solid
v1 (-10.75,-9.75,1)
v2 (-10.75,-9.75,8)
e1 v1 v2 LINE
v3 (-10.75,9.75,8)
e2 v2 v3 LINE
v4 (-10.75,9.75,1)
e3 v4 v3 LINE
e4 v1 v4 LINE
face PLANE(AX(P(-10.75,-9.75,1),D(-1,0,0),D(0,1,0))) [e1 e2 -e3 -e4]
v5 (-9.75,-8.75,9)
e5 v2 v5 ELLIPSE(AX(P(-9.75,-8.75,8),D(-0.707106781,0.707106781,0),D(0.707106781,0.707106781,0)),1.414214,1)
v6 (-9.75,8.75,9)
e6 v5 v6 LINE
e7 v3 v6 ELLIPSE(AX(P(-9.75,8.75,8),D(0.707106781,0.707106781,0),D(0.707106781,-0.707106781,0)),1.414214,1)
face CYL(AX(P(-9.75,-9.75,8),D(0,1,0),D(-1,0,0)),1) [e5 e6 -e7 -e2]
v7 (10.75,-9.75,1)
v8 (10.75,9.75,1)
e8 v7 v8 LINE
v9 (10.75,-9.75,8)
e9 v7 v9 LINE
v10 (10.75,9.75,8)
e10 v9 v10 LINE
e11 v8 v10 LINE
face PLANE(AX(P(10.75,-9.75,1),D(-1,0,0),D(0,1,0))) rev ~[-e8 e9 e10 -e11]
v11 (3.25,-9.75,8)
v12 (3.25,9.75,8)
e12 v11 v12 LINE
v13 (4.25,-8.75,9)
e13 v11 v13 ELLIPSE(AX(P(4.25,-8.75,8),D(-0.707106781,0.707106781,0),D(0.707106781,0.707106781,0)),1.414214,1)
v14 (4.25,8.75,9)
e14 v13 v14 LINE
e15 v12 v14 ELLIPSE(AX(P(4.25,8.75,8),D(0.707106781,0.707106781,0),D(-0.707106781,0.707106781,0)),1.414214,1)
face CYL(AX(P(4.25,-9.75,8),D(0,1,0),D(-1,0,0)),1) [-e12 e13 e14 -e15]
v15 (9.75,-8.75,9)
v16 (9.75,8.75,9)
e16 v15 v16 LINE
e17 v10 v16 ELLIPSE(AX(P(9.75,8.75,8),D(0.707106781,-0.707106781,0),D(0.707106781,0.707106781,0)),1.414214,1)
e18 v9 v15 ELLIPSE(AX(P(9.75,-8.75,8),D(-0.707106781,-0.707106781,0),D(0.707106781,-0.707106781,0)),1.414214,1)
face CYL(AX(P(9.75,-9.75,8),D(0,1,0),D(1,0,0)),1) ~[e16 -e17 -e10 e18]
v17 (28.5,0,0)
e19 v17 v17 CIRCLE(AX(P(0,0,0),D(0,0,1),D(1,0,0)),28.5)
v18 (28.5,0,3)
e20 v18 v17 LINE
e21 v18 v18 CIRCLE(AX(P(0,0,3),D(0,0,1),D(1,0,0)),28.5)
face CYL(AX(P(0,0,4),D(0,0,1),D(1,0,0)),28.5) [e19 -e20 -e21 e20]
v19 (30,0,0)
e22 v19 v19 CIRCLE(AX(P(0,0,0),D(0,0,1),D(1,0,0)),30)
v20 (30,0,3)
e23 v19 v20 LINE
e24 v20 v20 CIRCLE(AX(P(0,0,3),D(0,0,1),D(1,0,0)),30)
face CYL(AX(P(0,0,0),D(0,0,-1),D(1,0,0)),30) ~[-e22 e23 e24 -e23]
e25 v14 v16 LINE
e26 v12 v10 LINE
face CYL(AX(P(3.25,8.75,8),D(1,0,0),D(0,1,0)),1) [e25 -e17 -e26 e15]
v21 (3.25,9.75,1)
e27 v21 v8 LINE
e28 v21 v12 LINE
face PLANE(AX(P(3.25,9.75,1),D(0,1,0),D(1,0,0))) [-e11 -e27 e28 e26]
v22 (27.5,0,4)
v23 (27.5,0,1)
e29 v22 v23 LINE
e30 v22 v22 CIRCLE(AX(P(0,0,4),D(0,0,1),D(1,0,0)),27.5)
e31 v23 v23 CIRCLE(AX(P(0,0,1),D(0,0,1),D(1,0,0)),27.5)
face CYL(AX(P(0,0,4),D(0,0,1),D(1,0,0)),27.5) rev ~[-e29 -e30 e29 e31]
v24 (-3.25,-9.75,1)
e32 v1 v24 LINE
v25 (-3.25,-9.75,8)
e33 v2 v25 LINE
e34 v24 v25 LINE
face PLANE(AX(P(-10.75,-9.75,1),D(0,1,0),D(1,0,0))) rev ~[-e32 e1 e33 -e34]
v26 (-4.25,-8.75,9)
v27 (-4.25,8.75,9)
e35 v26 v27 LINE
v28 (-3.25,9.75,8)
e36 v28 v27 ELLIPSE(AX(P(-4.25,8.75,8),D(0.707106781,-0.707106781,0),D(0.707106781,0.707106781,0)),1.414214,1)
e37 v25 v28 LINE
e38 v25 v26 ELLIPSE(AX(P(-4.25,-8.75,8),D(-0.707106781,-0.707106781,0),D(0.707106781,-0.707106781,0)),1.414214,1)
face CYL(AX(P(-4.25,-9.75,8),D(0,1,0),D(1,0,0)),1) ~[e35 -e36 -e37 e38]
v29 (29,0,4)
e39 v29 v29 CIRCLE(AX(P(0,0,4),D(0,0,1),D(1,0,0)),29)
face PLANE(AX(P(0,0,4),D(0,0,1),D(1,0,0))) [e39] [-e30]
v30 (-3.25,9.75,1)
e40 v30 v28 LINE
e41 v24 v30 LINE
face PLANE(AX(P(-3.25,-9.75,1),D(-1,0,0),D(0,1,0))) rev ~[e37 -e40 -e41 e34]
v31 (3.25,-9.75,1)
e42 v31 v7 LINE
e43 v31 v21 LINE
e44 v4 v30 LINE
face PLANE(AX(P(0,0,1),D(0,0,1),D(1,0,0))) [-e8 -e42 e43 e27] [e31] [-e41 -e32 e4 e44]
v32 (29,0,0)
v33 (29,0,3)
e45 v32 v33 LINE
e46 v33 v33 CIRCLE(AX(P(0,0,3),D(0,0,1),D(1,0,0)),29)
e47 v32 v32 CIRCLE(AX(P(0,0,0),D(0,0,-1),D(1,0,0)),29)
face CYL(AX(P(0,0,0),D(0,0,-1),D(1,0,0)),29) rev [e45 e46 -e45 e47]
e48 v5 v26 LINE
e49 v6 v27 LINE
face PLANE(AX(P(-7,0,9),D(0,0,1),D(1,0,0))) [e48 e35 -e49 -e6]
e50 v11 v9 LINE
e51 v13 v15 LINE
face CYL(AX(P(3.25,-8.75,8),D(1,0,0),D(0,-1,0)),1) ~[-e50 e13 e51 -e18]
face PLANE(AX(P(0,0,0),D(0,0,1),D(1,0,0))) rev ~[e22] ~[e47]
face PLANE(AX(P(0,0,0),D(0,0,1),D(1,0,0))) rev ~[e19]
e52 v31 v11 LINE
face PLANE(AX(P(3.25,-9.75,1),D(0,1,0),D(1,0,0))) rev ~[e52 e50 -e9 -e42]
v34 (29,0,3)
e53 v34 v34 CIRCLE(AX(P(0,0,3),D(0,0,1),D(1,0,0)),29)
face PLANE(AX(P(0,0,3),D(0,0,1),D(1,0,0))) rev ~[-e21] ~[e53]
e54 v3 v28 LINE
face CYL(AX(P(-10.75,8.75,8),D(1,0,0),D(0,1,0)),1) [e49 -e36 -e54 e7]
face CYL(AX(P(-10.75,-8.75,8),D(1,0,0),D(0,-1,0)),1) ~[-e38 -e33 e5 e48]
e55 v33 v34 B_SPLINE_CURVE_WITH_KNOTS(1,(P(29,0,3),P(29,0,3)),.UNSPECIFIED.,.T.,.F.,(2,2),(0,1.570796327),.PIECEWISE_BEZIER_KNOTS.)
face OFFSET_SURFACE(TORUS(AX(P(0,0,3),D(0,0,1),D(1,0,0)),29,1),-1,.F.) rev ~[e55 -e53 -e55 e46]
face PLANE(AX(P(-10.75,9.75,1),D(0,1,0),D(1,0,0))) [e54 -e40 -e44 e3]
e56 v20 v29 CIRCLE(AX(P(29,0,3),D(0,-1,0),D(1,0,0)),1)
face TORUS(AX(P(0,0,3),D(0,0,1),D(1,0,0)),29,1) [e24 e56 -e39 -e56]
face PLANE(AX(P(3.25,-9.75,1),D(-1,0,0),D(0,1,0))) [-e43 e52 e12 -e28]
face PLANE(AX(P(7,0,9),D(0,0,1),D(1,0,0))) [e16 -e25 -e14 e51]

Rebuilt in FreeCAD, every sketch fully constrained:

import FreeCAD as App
import Part
import Sketcher
from FreeCAD import Vector
Q = App.Units.Quantity


def edges_at(feature, points):
    """Names of the edges that pass closest to the given points."""
    edges = feature.Shape.Edges
    near = lambda p: min(range(len(edges)), key=lambda i: edges[i].distToShape(Part.Vertex(*p))[0])
    return sorted({f"Edge{near(p) + 1}" for p in points})


def faces_at(feature, points):
    """Names of the faces that lie closest to the given points."""
    faces = feature.Shape.Faces
    near = lambda p: min(range(len(faces)), key=lambda i: faces[i].distToShape(Part.Vertex(*p))[0])
    return sorted({f"Face{near(p) + 1}" for p in points})


def add_polygon(sketch, points):
    """Adds a closed chain of lines whose ends are joined by coincident constraints."""
    first, n = sketch.GeometryCount, len(points)
    for a, b in zip(points, points[1:] + points[:1]):
        sketch.addGeometry(Part.LineSegment(App.Vector(*a, 0), App.Vector(*b, 0)), False)
    for i in range(n):
        sketch.addConstraint(Sketcher.Constraint("Coincident", first + i, 2, first + (i + 1) % n, 1))

doc = App.newDocument("Part")
params = doc.addObject("Spreadsheet::Sheet", "Params")
for row, (alias, value) in enumerate([
    ("sketch1_diameter", "60 mm"),
    ("pad1_length", "4 mm"),
    ("sketch2_diameter", "55 mm"),
    ("pocket1_length", "3 mm"),
    ("fillet_radius", "1 mm"),
    ("thickness_wall", "1 mm"),
    ("sketch3_width", "7.5 mm"),
    ("sketch3_height", "19.5 mm"),
    ("pad2_length", "8 mm"),
    ("fillet2_radius", "1 mm"),
], start=1):
    params.set(f"A{row}", alias)
    params.set(f"B{row}", "=" + value)
    params.setAlias(f"B{row}", alias)

body = doc.addObject("PartDesign::Body", "Body")

# Sketch on XY plane
sketch1 = doc.addObject("Sketcher::SketchObject", "Sketch")
body.addObject(sketch1)
sketch1.AttachmentSupport = (doc.XY_Plane, [""])
sketch1.MapMode = "FlatFace"
sketch1.addGeometry(Part.Circle(Vector(0, 0, 0), Vector(0, 0, 1), 30), False)
sketch1.addConstraint([
    Sketcher.Constraint("Coincident", 0, 3, -1, 1),
    Sketcher.Constraint("Diameter", 0, Q("60 mm")),
])
sketch1.setExpression("Constraints[1]", "Params.sketch1_diameter")
pad1 = doc.addObject("PartDesign::Pad", "Pad")
body.addObject(pad1)
pad1.Profile = sketch1
pad1.setExpression("Length", "Params.pad1_length")

# Sketch on XY plane
sketch2 = doc.addObject("Sketcher::SketchObject", "Sketch001")
body.addObject(sketch2)
sketch2.AttachmentSupport = (doc.XY_Plane, [""])
sketch2.MapMode = "FlatFace"
sketch2.AttachmentOffset = App.Placement(Vector(0, 0, 4), App.Rotation())
sketch2.addGeometry(Part.Circle(Vector(0, 0, 0), Vector(0, 0, 1), 28), False)
sketch2.addConstraint([
    Sketcher.Constraint("Coincident", 0, 3, -1, 1),
    Sketcher.Constraint("Diameter", 0, Q("55 mm")),
])
sketch2.setExpression("Constraints[1]", "Params.sketch2_diameter")
pocket1 = doc.addObject("PartDesign::Pocket", "Pocket")
body.addObject(pocket1)
pocket1.Profile = sketch2
pocket1.setExpression("Length", "Params.pocket1_length")
doc.recompute()

fillet = doc.addObject("PartDesign::Fillet", "Fillet")
body.addObject(fillet)
fillet.Base = (pocket1, edges_at(pocket1, [(-30, 0, 4)]))
fillet.setExpression("Radius", "Params.fillet_radius")
doc.recompute()

thickness = doc.addObject("PartDesign::Thickness", "Thickness")
body.addObject(thickness)
thickness.Base = (fillet, faces_at(fillet, [(0, 0, 0)]))
thickness.setExpression("Value", "Params.thickness_wall")
thickness.Reversed = True
thickness.Join = "Intersection"

# Sketch on XY plane
sketch3 = doc.addObject("Sketcher::SketchObject", "Sketch002")
body.addObject(sketch3)
sketch3.AttachmentSupport = (doc.XY_Plane, [""])
sketch3.MapMode = "FlatFace"
sketch3.AttachmentOffset = App.Placement(Vector(0, 0, 1), App.Rotation())
add_polygon(sketch3, [(3, 10), (3, -10), (11, -10), (11, 10)])  # lines 0-3
add_polygon(sketch3, [(-11, 10), (-11, -10), (-3, -10), (-3, 10)])  # lines 4-7
sketch3.addConstraint([
    Sketcher.Constraint("Vertical", 0),
    Sketcher.Constraint("Horizontal", 1),
    Sketcher.Constraint("Vertical", 2),
    Sketcher.Constraint("Horizontal", 3),
    Sketcher.Constraint("Vertical", 4),
    Sketcher.Constraint("Horizontal", 5),
    Sketcher.Constraint("Vertical", 6),
    Sketcher.Constraint("Horizontal", 7),
    Sketcher.Constraint("Symmetric", 2, 2, 4, 2, -1, 1),
    Sketcher.Constraint("Symmetric", 0, 2, 6, 2, -1, 1),
    Sketcher.Constraint("Horizontal", 1, 2, 4, 2),
    Sketcher.Constraint("DistanceX", 1, 1, 1, 2, Q("7.5 mm")),
    Sketcher.Constraint("DistanceY", 0, 2, 0, 1, Q("19.5 mm")),
    Sketcher.Constraint("DistanceX", 4, 2, 0, 2, Q("14 mm")),
])
sketch3.setExpression("Constraints[19]", "Params.sketch3_width")
sketch3.setExpression("Constraints[20]", "Params.sketch3_height")
pad2 = doc.addObject("PartDesign::Pad", "Pad001")
body.addObject(pad2)
pad2.Profile = sketch3
pad2.setExpression("Length", "Params.pad2_length")
doc.recompute()

fillet2 = doc.addObject("PartDesign::Fillet", "Fillet001")
body.addObject(fillet2)
fillet2.Base = (pad2, edges_at(pad2, [
    (3.25, 0, 9),
    (7, -9.75, 9),
    (10.75, 0, 9),
    (7, 9.75, 9),
    (-7, -9.75, 9),
    (-3.25, 0, 9),
    (-7, 9.75, 9),
    (-10.75, 0, 9),
]))
fillet2.setExpression("Radius", "Params.fillet2_radius")

doc.recompute()
